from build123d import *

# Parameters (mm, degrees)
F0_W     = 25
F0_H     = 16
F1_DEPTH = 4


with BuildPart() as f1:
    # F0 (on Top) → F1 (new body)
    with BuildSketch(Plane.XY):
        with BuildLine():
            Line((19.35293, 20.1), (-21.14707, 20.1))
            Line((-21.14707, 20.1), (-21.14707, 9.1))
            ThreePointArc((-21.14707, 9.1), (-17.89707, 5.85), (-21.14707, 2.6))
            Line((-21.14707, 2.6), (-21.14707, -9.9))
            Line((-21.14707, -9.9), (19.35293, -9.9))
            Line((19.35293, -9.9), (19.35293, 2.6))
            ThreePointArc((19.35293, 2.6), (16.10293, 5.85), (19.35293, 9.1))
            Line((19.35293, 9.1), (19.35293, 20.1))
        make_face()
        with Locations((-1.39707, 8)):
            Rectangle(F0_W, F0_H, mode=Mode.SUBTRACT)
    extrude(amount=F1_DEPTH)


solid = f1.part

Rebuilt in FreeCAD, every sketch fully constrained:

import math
import FreeCAD as App
import Part
import Sketcher
from FreeCAD import Vector


def add_polygon(sketch, points):
    """Adds a closed chain of lines whose ends are joined by coincident constraints."""
    first, n = sketch.GeometryCount, len(points)
    for a, b in zip(points, points[1:] + points[:1]):
        sketch.addGeometry(Part.LineSegment(App.Vector(*a, 0), App.Vector(*b, 0)), False)
    for i in range(n):
        sketch.addConstraint(Sketcher.Constraint("Coincident", first + i, 2, first + (i + 1) % n, 1))

doc = App.newDocument("Part")
body = doc.addObject("PartDesign::Body", "Body")

# Sketch on XY plane
sketch1 = body.newObject("Sketcher::SketchObject", "Sketch")
sketch1.AttachmentSupport = (doc.getObject("XY_Plane"), [""])
sketch1.MapMode = "FlatFace"
sketch1.addGeometry(Part.LineSegment(Vector(19.4, 20.1, 0), Vector(-21.1, 20.1, 0)), False)  # 0
sketch1.addGeometry(Part.LineSegment(Vector(-21.1, 20.1, 0), Vector(-21.1, 9.1, 0)), False)  # 1
sketch1.addGeometry(Part.ArcOfCircle(Part.Circle(Vector(-21.1, 5.8, 0), Vector(0, 0, 1), 3.2), math.radians(-90), math.radians(90)), False)  # 2
sketch1.addGeometry(Part.LineSegment(Vector(-21.1, 2.6, 0), Vector(-21.1, -9.9, 0)), False)  # 3
sketch1.addGeometry(Part.LineSegment(Vector(-21.1, -9.9, 0), Vector(19.4, -9.9, 0)), False)  # 4
sketch1.addGeometry(Part.LineSegment(Vector(19.4, -9.9, 0), Vector(19.4, 2.6, 0)), False)  # 5
sketch1.addGeometry(Part.ArcOfCircle(Part.Circle(Vector(19.4, 5.8, 0), Vector(0, 0, 1), 3.2), math.radians(90), math.radians(270)), False)  # 6
sketch1.addGeometry(Part.LineSegment(Vector(19.4, 9.1, 0), Vector(19.4, 20.1, 0)), False)  # 7
add_polygon(sketch1, [(11.1, 0), (-13.9, 0), (-13.9, 16), (11.1, 16)])  # lines 8-11
sketch1.addConstraint(Sketcher.Constraint("Coincident", 0, 2, 1, 1))
sketch1.addConstraint(Sketcher.Constraint("Coincident", 1, 2, 2, 2))
sketch1.addConstraint(Sketcher.Constraint("Coincident", 2, 1, 3, 1))
sketch1.addConstraint(Sketcher.Constraint("Coincident", 3, 2, 4, 1))
sketch1.addConstraint(Sketcher.Constraint("Coincident", 4, 2, 5, 1))
sketch1.addConstraint(Sketcher.Constraint("Coincident", 5, 2, 6, 2))
sketch1.addConstraint(Sketcher.Constraint("Coincident", 6, 1, 7, 1))
sketch1.addConstraint(Sketcher.Constraint("Coincident", 7, 2, 0, 1))
sketch1.addConstraint(Sketcher.Constraint("Horizontal", 0))
sketch1.addConstraint(Sketcher.Constraint("Vertical", 1))
sketch1.addConstraint(Sketcher.Constraint("Vertical", 3))
sketch1.addConstraint(Sketcher.Constraint("Horizontal", 4))
sketch1.addConstraint(Sketcher.Constraint("Vertical", 5))
sketch1.addConstraint(Sketcher.Constraint("Vertical", 7))
sketch1.addConstraint(Sketcher.Constraint("Horizontal", 8))
sketch1.addConstraint(Sketcher.Constraint("Vertical", 9))
sketch1.addConstraint(Sketcher.Constraint("Horizontal", 10))
sketch1.addConstraint(Sketcher.Constraint("Vertical", 11))
sketch1.addConstraint(Sketcher.Constraint("Equal", 2, 6))
sketch1.addConstraint(Sketcher.Constraint("PointOnObject", 8, 2, -1))
sketch1.addConstraint(Sketcher.Constraint("Horizontal", 2, 3, 6, 3))
sketch1.addConstraint(Sketcher.Constraint("Vertical", 2, 3, 0, 2))
sketch1.addConstraint(Sketcher.Constraint("Vertical", 1, 2, 2, 1))
sketch1.addConstraint(Sketcher.Constraint("Vertical", 6, 3, 4, 2))
sketch1.addConstraint(Sketcher.Constraint("Vertical", 5, 2, 6, 1))
sketch1.addConstraint(Sketcher.Constraint("DistanceX", 8, 2, 8, 1, 25.0))
sketch1.addConstraint(Sketcher.Constraint("DistanceY", 1, 2, 1, 1, 11.0))
sketch1.addConstraint(Sketcher.Constraint("DistanceY", 9, 1, 9, 2, 16.0))
sketch1.addConstraint(Sketcher.Constraint("Radius", 2, 3.25))
sketch1.addConstraint(Sketcher.Constraint("DistanceX", 0, 2, 0, 1, 40.5))
sketch1.addConstraint(Sketcher.Constraint("DistanceY", 3, 2, 3, 1, 12.5))
sketch1.addConstraint(Sketcher.Constraint("DistanceY", -1, 1, 0, 2, 20.1))
sketch1.addConstraint(Sketcher.Constraint("DistanceX", 2, 1, 8, 2, 7.25))
sketch1.addConstraint(Sketcher.Constraint("DistanceX", 2, 3, -1, 1, 21.14707))
pad1 = body.newObject("PartDesign::Pad", "Pad")
pad1.Profile = sketch1
pad1.Length = 4

doc.recompute()
